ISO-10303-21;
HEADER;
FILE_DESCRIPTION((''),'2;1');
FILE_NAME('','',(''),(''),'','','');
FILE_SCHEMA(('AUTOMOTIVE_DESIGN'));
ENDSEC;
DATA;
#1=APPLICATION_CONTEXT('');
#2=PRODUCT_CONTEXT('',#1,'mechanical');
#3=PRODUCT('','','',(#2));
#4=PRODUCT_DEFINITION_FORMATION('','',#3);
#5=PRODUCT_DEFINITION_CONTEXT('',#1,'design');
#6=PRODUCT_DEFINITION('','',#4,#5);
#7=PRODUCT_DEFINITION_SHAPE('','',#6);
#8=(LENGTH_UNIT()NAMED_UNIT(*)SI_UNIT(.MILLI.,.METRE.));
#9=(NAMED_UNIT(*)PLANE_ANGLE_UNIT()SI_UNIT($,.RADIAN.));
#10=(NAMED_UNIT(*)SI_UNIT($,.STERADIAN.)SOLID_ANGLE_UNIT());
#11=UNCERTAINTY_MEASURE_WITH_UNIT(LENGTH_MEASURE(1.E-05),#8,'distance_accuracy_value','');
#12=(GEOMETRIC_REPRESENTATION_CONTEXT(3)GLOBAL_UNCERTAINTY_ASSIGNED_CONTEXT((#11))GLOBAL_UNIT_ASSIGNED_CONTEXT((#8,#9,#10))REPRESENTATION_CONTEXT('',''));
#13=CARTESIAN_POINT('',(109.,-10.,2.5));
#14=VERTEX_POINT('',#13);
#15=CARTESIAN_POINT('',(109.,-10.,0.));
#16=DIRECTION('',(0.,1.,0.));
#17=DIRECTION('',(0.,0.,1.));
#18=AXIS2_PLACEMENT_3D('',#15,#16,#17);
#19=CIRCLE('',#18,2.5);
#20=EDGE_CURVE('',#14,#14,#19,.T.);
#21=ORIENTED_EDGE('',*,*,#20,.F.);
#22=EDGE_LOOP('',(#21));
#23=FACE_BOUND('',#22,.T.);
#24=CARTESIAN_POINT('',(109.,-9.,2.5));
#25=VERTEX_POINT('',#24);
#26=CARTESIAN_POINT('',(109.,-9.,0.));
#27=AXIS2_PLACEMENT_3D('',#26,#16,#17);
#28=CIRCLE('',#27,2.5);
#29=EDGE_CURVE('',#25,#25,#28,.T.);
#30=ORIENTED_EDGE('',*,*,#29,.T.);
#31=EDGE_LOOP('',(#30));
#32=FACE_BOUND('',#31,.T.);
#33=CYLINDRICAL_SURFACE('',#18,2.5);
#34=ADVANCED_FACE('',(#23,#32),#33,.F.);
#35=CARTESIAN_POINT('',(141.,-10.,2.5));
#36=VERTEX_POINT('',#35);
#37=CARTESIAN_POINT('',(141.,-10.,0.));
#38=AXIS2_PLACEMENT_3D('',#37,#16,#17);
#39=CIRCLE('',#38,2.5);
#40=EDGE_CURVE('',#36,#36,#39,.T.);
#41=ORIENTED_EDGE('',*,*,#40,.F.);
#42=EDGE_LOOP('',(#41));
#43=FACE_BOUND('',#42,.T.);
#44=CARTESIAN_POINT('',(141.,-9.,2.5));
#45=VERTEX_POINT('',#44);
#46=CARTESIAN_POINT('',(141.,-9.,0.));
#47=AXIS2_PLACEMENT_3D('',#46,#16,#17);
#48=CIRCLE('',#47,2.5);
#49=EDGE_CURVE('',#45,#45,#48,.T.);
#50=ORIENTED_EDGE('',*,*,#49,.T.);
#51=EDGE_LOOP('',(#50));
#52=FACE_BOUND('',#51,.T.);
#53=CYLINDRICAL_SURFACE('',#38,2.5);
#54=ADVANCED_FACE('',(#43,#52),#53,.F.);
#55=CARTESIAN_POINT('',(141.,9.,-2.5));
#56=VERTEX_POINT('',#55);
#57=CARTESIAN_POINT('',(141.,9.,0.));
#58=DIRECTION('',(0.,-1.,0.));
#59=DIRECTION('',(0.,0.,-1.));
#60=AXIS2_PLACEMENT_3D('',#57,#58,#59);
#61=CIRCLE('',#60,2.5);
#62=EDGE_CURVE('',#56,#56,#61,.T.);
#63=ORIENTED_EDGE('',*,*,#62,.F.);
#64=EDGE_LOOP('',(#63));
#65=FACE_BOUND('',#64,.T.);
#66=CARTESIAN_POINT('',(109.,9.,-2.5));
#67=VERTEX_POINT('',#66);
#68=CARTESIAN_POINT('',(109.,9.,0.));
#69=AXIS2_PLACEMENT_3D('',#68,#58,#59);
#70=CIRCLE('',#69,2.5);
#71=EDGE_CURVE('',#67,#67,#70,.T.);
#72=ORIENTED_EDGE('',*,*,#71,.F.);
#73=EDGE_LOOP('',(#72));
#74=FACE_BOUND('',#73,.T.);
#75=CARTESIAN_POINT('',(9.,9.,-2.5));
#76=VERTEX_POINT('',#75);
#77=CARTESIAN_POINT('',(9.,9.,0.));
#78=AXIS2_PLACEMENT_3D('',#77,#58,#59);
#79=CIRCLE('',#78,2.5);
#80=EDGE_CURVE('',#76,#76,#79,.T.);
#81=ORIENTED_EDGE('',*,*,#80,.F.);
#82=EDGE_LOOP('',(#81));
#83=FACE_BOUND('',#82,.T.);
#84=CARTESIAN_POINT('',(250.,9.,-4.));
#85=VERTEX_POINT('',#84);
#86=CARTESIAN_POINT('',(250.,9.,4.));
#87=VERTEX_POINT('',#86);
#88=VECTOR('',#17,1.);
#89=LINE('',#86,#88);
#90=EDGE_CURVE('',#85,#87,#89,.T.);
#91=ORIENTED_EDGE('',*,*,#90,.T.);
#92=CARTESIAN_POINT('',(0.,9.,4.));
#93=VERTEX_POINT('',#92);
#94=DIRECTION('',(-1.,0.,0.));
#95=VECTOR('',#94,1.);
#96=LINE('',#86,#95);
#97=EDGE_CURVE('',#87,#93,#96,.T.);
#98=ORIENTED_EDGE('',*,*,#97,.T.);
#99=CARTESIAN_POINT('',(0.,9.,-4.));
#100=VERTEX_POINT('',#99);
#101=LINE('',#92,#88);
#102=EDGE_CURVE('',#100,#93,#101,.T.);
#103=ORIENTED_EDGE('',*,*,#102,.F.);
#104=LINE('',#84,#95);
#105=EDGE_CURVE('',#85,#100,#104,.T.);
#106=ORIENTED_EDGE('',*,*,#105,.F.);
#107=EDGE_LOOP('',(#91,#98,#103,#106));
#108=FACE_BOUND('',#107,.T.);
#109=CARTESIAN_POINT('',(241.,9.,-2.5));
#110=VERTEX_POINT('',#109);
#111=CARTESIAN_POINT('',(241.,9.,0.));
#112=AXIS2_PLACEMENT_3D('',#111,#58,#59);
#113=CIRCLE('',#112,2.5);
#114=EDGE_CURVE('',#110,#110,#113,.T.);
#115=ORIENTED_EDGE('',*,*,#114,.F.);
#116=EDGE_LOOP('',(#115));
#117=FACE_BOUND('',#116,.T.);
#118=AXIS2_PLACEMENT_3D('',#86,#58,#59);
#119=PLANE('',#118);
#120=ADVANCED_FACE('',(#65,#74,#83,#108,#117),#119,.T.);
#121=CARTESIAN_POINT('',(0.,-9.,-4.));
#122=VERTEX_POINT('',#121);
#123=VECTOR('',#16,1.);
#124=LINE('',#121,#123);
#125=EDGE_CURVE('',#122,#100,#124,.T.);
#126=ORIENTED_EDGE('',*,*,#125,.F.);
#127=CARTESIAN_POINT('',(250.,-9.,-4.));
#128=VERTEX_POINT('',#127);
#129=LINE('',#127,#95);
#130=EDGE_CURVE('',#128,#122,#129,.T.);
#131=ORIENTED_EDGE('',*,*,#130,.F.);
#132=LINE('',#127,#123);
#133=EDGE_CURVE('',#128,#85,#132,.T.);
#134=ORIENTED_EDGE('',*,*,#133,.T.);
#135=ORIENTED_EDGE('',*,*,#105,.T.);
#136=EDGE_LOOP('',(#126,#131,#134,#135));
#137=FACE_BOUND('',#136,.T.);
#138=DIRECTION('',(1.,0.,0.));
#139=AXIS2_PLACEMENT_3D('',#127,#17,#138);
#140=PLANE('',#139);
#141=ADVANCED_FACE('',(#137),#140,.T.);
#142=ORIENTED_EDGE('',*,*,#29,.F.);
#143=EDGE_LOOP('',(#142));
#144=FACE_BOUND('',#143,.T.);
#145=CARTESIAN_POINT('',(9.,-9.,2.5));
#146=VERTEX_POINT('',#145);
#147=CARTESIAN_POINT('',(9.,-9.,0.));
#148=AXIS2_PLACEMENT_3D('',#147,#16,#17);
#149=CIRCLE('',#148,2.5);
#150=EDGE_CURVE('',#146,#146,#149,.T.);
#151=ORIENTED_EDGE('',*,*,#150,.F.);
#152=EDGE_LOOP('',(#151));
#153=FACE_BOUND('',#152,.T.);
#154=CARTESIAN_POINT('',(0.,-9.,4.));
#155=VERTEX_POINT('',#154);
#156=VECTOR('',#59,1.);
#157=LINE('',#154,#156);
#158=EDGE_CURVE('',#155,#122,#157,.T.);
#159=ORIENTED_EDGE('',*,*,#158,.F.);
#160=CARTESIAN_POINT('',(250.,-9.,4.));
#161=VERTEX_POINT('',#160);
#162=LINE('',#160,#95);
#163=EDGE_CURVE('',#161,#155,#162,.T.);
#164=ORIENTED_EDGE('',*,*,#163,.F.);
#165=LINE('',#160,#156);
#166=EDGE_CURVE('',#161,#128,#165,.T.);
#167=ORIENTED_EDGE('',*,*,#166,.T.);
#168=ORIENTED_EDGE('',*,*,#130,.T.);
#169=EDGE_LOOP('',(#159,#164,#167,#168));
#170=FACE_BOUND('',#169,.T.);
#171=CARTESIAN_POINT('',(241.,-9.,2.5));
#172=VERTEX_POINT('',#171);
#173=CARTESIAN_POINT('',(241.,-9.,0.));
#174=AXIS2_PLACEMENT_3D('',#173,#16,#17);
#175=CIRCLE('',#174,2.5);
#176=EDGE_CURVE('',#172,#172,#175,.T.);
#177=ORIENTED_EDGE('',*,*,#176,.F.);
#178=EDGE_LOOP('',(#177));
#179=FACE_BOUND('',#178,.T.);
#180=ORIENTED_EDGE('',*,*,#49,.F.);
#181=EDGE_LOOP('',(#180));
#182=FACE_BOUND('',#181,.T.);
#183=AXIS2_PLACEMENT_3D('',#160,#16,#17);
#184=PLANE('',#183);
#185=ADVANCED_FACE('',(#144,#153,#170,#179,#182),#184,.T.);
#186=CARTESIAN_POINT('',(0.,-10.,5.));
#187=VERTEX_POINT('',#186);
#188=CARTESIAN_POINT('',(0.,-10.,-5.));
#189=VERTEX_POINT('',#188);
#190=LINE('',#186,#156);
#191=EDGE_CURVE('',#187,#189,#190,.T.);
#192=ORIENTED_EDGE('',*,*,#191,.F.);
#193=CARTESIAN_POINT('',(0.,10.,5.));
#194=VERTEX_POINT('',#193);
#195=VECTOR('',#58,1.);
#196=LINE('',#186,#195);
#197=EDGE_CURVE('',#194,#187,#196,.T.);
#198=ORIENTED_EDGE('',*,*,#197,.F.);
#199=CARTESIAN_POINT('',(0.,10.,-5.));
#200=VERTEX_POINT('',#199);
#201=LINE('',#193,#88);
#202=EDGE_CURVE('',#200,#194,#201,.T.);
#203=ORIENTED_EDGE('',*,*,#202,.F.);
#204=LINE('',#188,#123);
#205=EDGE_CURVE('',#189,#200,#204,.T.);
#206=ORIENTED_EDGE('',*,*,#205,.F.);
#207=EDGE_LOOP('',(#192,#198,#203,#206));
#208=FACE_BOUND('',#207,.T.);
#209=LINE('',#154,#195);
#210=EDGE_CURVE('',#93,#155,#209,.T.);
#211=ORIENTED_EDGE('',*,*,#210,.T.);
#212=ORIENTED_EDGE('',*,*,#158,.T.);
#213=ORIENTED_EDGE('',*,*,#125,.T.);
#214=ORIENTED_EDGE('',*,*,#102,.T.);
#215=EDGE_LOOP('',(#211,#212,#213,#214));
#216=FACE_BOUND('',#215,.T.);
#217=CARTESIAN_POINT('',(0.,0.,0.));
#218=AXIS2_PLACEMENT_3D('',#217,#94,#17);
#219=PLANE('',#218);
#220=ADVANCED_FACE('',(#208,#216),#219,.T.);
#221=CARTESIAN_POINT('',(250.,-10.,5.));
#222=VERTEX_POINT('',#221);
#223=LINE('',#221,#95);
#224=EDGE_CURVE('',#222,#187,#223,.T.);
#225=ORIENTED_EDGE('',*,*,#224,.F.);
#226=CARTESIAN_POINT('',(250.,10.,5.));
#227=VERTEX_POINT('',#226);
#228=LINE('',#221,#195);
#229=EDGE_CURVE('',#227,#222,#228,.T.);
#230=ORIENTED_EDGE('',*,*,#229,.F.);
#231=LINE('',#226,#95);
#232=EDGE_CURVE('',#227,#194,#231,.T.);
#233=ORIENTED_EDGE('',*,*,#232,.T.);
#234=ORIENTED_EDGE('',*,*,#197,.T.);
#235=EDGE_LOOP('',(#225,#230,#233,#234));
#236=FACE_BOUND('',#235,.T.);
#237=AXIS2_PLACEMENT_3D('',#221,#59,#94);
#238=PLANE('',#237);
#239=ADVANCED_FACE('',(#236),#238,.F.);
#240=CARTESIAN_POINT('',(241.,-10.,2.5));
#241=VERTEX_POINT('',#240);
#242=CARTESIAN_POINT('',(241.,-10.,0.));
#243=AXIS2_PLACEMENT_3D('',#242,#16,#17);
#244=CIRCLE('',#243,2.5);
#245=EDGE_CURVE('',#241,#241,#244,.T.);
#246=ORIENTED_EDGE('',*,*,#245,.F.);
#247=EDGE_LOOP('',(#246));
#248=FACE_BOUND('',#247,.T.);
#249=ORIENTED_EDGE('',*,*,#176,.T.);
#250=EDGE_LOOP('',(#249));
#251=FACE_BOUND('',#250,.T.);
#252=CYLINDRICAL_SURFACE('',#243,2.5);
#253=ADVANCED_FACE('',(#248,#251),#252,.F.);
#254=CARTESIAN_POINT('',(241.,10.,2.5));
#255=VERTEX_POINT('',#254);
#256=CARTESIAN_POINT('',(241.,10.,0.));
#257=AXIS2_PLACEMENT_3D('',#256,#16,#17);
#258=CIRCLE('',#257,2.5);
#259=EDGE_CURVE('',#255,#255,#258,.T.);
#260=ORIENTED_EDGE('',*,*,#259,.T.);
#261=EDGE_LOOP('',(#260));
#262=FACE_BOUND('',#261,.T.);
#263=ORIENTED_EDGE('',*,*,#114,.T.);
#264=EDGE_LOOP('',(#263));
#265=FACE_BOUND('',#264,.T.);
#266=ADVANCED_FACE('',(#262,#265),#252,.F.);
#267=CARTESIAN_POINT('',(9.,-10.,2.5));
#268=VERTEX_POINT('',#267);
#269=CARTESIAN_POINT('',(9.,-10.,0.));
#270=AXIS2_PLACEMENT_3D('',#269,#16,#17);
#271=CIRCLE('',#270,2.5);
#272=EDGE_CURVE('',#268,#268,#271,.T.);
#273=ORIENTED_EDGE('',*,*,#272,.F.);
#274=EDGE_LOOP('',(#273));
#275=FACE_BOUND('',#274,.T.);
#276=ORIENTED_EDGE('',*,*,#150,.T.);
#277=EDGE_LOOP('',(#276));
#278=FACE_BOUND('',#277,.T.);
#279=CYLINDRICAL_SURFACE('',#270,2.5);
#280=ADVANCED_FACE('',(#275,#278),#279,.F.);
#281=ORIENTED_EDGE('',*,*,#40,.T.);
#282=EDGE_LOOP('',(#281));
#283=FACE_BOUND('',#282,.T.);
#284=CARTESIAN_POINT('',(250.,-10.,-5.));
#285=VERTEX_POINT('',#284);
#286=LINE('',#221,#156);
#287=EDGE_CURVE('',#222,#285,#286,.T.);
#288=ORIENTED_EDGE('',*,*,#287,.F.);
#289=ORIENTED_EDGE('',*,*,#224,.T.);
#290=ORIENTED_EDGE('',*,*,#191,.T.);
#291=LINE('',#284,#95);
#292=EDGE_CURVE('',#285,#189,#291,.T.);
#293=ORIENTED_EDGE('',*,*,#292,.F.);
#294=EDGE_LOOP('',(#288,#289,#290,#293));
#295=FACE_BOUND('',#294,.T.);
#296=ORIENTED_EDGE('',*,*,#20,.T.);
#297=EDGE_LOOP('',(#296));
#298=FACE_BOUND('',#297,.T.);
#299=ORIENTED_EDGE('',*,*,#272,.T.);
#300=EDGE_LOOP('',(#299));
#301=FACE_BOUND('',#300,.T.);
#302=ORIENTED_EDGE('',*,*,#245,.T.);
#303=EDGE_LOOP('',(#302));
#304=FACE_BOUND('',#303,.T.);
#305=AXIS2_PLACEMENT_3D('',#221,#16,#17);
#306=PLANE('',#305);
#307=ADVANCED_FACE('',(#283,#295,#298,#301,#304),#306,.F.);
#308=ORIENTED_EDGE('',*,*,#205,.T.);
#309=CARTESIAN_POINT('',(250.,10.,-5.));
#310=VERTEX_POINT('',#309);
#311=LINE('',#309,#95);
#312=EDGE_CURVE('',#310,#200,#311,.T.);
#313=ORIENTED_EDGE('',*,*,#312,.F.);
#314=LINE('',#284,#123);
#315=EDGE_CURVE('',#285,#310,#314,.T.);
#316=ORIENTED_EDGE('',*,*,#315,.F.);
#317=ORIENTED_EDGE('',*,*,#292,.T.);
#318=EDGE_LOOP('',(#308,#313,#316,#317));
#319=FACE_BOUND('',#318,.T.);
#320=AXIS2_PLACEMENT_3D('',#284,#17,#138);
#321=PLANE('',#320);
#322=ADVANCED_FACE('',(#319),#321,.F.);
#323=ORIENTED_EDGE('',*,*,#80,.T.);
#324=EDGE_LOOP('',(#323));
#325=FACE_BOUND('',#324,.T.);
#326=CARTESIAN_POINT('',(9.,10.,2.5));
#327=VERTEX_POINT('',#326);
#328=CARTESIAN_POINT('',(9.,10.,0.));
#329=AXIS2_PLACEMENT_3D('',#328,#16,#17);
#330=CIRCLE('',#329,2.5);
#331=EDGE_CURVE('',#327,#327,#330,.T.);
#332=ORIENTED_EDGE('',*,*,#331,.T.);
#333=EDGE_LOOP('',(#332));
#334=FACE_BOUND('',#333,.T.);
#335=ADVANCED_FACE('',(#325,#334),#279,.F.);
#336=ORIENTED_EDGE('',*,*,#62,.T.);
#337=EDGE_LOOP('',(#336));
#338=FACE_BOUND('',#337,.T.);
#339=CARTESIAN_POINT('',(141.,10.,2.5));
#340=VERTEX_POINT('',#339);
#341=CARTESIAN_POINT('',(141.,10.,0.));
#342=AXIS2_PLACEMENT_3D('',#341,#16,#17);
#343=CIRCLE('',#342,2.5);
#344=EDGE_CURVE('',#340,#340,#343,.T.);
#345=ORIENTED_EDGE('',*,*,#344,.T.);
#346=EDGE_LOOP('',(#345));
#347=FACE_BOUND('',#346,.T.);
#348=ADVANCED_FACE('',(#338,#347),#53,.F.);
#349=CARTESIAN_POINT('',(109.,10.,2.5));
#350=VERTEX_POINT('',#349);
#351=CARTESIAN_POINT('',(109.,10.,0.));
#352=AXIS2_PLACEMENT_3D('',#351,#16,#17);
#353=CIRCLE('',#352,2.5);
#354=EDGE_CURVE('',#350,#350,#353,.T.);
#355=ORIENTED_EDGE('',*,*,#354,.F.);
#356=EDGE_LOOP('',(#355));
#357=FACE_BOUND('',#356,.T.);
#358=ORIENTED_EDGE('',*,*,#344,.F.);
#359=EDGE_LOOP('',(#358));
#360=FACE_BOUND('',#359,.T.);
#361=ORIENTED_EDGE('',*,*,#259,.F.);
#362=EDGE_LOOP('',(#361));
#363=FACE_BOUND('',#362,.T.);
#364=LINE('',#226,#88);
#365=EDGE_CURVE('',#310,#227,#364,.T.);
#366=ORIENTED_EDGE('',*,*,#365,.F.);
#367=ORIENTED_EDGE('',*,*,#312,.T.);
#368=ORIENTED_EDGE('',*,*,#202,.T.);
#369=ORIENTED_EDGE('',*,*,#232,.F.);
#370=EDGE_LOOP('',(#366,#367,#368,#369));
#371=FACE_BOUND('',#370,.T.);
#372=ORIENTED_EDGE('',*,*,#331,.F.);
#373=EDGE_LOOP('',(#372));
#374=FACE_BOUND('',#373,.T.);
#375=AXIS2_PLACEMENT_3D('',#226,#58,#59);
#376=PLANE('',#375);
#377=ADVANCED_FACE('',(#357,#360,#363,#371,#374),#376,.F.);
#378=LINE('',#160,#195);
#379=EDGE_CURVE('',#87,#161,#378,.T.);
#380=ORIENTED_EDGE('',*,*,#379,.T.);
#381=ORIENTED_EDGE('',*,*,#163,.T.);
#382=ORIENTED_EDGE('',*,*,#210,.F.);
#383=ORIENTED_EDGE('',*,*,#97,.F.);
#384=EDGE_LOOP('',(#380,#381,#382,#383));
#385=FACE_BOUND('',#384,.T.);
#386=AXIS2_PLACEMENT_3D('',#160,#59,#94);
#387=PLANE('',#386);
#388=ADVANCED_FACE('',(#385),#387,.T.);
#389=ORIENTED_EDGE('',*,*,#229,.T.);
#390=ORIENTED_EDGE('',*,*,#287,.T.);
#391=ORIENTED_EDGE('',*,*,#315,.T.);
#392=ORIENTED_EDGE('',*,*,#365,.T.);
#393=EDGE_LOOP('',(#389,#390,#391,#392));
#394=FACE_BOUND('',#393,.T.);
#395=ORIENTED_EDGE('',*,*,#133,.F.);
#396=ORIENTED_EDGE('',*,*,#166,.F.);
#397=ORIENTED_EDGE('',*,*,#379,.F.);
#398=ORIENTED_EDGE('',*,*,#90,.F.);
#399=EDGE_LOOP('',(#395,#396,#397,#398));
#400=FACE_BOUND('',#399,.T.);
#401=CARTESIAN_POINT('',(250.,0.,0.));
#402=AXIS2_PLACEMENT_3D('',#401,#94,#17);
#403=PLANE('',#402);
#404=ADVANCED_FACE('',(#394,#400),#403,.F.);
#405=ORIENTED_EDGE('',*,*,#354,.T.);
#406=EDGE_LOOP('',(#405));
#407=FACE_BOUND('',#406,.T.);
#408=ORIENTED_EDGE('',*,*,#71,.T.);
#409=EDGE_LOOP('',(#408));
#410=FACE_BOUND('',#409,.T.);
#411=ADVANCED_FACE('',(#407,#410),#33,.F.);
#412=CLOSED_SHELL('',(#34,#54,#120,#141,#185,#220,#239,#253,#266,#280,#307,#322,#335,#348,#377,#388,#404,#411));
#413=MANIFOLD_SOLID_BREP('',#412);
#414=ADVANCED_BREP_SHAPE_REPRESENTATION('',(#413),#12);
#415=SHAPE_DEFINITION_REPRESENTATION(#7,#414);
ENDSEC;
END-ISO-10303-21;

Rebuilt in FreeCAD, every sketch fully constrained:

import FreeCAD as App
import Part
import Sketcher
Q = App.Units.Quantity


def add_polygon(sketch, points):
    """Adds a closed chain of lines whose ends are joined by coincident constraints."""
    first, n = sketch.GeometryCount, len(points)
    for a, b in zip(points, points[1:] + points[:1]):
        sketch.addGeometry(Part.LineSegment(App.Vector(*a, 0), App.Vector(*b, 0)), False)
    for i in range(n):
        sketch.addConstraint(Sketcher.Constraint("Coincident", first + i, 2, first + (i + 1) % n, 1))

doc = App.newDocument("Part")
body = doc.addObject("PartDesign::Body", "Body")

# Sketch on YZ plane
sketch1 = body.newObject("Sketcher::SketchObject", "Sketch")
sketch1.AttachmentSupport = (doc.getObject("YZ_Plane"), [""])
sketch1.MapMode = "FlatFace"
add_polygon(sketch1, [(10, 5), (-10, 5), (-10, -5), (10, -5)])  # lines 0-3
add_polygon(sketch1, [(-9, -4), (-9, 4), (9, 4), (9, -4)])  # lines 4-7
sketch1.addConstraint([
    Sketcher.Constraint("Horizontal", 0),
    Sketcher.Constraint("Vertical", 1),
    Sketcher.Constraint("Horizontal", 2),
    Sketcher.Constraint("Vertical", 3),
    Sketcher.Constraint("Vertical", 4),
    Sketcher.Constraint("Horizontal", 5),
    Sketcher.Constraint("Vertical", 6),
    Sketcher.Constraint("Horizontal", 7),
    Sketcher.Constraint("Symmetric", 0, 2, 2, 2, -1, 1),
    Sketcher.Constraint("Symmetric", 4, 2, 6, 2, -1, 1),
    Sketcher.Constraint("DistanceX", 0, 2, 0, 1, Q("20 mm")),
    Sketcher.Constraint("DistanceX", 5, 1, 5, 2, Q("18 mm")),
    Sketcher.Constraint("DistanceY", 1, 2, 1, 1, Q("10 mm")),
    Sketcher.Constraint("DistanceY", 4, 1, 4, 2, Q("8 mm")),
])
pad1 = body.newObject("PartDesign::Pad", "Pad")
pad1.Profile = sketch1
pad1.Length = 250

# Sketch on XZ plane
sketch2 = body.newObject("Sketcher::SketchObject", "Sketch001")
sketch2.AttachmentSupport = (doc.getObject("XZ_Plane"), [""])
sketch2.MapMode = "FlatFace"
sketch2.AttachmentOffset = App.Placement(App.Vector(0, 0, -10), App.Rotation())
sketch2.addGeometry([
    Part.Circle(App.Vector(241, 0, 0), App.Vector(0, 0, 1), 2.5),
    Part.Circle(App.Vector(9, 0, 0), App.Vector(0, 0, 1), 2.5),
], False)
sketch2.addConstraint([
    Sketcher.Constraint("Equal", 0, 1),
    Sketcher.Constraint("PointOnObject", 0, 3, -1),
    Sketcher.Constraint("PointOnObject", 1, 3, -1),
    Sketcher.Constraint("Diameter", 0, Q("5 mm")),
    Sketcher.Constraint("DistanceX", -1, 1, 0, 3, Q("241 mm")),
    Sketcher.Constraint("DistanceX", -1, 1, 1, 3, Q("9 mm")),
])
pocket1 = body.newObject("PartDesign::Pocket", "Pocket")
pocket1.Profile = sketch2
pocket1.Length = 20
pocket1.Reversed = True

# Sketch on XZ plane
sketch3 = body.newObject("Sketcher::SketchObject", "Sketch002")
sketch3.AttachmentSupport = (doc.getObject("XZ_Plane"), [""])
sketch3.MapMode = "FlatFace"
sketch3.AttachmentOffset = App.Placement(App.Vector(0, 0, -10), App.Rotation())
sketch3.addGeometry([
    Part.Circle(App.Vector(109, 0, 0), App.Vector(0, 0, 1), 2.5),
    Part.Circle(App.Vector(141, 0, 0), App.Vector(0, 0, 1), 2.5),
], False)
sketch3.addConstraint([
    Sketcher.Constraint("Equal", 0, 1),
    Sketcher.Constraint("PointOnObject", 0, 3, -1),
    Sketcher.Constraint("PointOnObject", 1, 3, -1),
    Sketcher.Constraint("Diameter", 0, Q("5 mm")),
    Sketcher.Constraint("DistanceX", -1, 1, 0, 3, Q("109 mm")),
    Sketcher.Constraint("DistanceX", -1, 1, 1, 3, Q("141 mm")),
])
pocket2 = body.newObject("PartDesign::Pocket", "Pocket001")
pocket2.Profile = sketch3
pocket2.Length = 20
pocket2.Reversed = True

doc.recompute()
